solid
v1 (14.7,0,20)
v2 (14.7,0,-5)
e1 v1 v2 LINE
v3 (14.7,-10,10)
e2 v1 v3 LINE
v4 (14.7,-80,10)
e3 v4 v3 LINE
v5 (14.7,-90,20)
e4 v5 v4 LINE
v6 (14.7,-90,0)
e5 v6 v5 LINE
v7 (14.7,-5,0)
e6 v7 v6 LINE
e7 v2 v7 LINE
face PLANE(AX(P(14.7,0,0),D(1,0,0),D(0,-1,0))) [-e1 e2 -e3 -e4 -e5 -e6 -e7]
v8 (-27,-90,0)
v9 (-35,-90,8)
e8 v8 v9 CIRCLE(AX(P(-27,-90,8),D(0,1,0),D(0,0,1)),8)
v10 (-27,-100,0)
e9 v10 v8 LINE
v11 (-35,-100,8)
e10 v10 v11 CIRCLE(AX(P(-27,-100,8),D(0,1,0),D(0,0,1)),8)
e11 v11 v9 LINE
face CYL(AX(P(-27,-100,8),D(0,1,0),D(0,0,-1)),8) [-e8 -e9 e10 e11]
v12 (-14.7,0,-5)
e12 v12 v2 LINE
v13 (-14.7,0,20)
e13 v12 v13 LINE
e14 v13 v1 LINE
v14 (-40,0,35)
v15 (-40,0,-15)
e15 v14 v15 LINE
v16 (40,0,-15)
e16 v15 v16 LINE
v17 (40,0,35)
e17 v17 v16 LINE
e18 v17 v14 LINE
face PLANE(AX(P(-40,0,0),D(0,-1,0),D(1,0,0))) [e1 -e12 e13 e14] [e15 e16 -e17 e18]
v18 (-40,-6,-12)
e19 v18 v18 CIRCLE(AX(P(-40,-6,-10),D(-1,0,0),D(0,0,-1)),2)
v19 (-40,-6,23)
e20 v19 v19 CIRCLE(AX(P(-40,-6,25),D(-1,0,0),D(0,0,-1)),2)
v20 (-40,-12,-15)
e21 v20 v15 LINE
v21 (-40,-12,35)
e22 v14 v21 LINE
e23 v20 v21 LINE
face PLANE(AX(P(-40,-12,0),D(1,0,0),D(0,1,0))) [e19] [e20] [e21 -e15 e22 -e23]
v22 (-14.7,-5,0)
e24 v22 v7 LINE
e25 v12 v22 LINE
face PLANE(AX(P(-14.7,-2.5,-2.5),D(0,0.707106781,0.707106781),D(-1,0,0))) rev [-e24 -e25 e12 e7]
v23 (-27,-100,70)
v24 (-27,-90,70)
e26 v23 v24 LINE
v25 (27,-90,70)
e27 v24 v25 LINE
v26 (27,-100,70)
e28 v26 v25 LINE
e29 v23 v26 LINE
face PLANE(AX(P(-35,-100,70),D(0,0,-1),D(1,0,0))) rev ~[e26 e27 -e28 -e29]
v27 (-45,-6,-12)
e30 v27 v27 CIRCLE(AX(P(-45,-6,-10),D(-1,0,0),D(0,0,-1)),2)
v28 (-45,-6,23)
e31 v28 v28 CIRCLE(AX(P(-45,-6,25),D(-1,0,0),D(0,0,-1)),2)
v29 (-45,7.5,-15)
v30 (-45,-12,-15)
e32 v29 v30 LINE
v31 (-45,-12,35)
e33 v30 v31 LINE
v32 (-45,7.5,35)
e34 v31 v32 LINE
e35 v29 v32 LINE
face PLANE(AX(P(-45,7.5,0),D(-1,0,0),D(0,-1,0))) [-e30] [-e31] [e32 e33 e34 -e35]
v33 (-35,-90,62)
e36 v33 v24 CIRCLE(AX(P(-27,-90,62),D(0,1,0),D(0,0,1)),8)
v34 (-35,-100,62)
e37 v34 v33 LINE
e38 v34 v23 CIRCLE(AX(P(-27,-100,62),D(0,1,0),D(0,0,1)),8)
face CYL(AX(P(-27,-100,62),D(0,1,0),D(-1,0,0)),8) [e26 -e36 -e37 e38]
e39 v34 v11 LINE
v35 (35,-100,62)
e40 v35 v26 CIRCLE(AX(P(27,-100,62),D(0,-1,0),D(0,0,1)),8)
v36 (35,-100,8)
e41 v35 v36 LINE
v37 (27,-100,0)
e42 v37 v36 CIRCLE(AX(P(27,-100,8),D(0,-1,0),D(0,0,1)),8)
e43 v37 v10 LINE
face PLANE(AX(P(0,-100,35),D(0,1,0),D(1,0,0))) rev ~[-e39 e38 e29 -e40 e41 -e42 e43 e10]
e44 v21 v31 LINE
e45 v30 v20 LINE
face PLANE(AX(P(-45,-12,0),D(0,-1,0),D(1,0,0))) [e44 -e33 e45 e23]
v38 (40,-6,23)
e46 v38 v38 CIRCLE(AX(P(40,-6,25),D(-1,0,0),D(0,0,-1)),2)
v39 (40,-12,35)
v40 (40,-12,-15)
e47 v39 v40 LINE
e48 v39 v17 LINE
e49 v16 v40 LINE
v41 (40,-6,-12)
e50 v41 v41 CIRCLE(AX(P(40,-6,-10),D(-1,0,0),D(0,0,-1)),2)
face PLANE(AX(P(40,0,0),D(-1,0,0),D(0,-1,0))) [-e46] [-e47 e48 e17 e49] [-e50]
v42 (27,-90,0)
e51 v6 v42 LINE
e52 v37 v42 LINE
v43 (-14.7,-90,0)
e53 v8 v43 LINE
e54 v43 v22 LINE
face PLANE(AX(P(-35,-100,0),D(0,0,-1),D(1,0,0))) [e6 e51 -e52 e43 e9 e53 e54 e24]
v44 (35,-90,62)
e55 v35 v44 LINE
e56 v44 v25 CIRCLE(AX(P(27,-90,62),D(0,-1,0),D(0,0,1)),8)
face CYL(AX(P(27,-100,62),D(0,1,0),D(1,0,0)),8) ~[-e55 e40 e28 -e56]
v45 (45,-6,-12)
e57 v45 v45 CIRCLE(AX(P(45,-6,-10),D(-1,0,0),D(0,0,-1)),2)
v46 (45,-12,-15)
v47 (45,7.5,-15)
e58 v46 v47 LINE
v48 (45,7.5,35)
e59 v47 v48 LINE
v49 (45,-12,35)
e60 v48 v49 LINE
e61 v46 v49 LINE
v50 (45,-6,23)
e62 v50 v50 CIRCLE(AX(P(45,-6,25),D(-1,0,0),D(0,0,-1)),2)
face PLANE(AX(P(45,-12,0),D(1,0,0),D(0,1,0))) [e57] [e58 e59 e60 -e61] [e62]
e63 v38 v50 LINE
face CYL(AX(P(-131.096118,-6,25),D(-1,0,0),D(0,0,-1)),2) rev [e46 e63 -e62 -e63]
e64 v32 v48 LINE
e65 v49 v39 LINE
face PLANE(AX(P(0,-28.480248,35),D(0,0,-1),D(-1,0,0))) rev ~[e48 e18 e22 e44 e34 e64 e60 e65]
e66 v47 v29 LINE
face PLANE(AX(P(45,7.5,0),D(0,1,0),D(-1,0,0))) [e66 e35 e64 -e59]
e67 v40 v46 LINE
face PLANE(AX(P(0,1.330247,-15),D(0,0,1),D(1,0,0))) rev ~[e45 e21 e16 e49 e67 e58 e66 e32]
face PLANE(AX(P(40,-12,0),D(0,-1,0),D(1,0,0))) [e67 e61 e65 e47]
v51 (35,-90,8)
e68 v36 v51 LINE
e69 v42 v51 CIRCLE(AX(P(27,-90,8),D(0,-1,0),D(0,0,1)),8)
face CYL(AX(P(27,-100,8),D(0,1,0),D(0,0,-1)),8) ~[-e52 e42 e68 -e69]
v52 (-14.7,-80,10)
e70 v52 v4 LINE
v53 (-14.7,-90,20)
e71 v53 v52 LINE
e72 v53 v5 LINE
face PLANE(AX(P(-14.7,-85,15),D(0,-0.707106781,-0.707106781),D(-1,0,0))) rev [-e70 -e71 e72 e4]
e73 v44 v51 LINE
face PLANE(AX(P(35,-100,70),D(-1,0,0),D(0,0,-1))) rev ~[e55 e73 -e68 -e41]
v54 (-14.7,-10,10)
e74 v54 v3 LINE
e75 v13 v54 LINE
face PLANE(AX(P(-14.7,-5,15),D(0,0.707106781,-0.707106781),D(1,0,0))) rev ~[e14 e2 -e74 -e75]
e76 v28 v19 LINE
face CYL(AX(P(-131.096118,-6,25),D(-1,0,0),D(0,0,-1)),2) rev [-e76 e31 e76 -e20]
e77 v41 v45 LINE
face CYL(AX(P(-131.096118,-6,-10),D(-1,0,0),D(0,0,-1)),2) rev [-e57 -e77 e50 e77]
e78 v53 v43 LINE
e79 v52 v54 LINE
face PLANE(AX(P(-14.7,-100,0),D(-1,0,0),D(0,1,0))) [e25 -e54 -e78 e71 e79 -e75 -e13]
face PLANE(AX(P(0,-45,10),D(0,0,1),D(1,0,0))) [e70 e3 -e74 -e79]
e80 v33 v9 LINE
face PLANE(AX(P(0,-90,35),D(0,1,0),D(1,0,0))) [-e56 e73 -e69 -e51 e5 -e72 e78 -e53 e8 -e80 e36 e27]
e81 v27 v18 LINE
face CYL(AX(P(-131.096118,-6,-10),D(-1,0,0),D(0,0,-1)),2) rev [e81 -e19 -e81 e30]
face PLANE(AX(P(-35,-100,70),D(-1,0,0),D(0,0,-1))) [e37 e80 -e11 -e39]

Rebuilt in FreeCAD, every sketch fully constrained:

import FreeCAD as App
import Part
import Sketcher

V = App.Vector
Q = App.Units.Quantity


def edges_at(feature, points):
    """Names of the edges that pass closest to the given points."""
    edges = feature.Shape.Edges
    near = lambda p: min(range(len(edges)), key=lambda i: edges[i].distToShape(Part.Vertex(*p))[0])
    return sorted({f"Edge{near(p) + 1}" for p in points})

doc = App.newDocument("Part")
body = doc.addObject("PartDesign::Body", "Body")

sketch1 = body.newObject("Sketcher::SketchObject", "Sketch")
sketch1.AttachmentSupport = (doc.getObject("XY_Plane"), [""])
sketch1.MapMode = "FlatFace"
sketch1.addGeometry(Part.LineSegment(V(45, 8, 0), V(-45, 8, 0)), False)
sketch1.addGeometry(Part.LineSegment(V(-45, 8, 0), V(-45, -12, 0)), False)
sketch1.addGeometry(Part.LineSegment(V(-45, -12, 0), V(-40, -12, 0)), False)
sketch1.addGeometry(Part.LineSegment(V(-40, -12, 0), V(-40, 0, 0)), False)
sketch1.addGeometry(Part.LineSegment(V(-40, 0, 0), V(-15, 0, 0)), False)
sketch1.addGeometry(Part.LineSegment(V(-15, 0, 0), V(-15, -100, 0)), False)
sketch1.addGeometry(Part.LineSegment(V(-15, -100, 0), V(15, -100, 0)), False)
sketch1.addGeometry(Part.LineSegment(V(15, -100, 0), V(15, 0, 0)), False)
sketch1.addGeometry(Part.LineSegment(V(15, 0, 0), V(40, 0, 0)), False)
sketch1.addGeometry(Part.LineSegment(V(40, 0, 0), V(40, -12, 0)), False)
sketch1.addGeometry(Part.LineSegment(V(40, -12, 0), V(45, -12, 0)), False)
sketch1.addGeometry(Part.LineSegment(V(45, -12, 0), V(45, 8, 0)), False)
sketch1.addConstraint(Sketcher.Constraint("Coincident", 0, 2, 1, 1))
sketch1.addConstraint(Sketcher.Constraint("Coincident", 1, 2, 2, 1))
sketch1.addConstraint(Sketcher.Constraint("Coincident", 2, 2, 3, 1))
sketch1.addConstraint(Sketcher.Constraint("Coincident", 3, 2, 4, 1))
sketch1.addConstraint(Sketcher.Constraint("Coincident", 4, 2, 5, 1))
sketch1.addConstraint(Sketcher.Constraint("Coincident", 5, 2, 6, 1))
sketch1.addConstraint(Sketcher.Constraint("Coincident", 6, 2, 7, 1))
sketch1.addConstraint(Sketcher.Constraint("Coincident", 7, 2, 8, 1))
sketch1.addConstraint(Sketcher.Constraint("Coincident", 8, 2, 9, 1))
sketch1.addConstraint(Sketcher.Constraint("Coincident", 9, 2, 10, 1))
sketch1.addConstraint(Sketcher.Constraint("Coincident", 10, 2, 11, 1))
sketch1.addConstraint(Sketcher.Constraint("Coincident", 11, 2, 0, 1))
sketch1.addConstraint(Sketcher.Constraint("Horizontal", 0))
sketch1.addConstraint(Sketcher.Constraint("Vertical", 1))
sketch1.addConstraint(Sketcher.Constraint("Horizontal", 2))
sketch1.addConstraint(Sketcher.Constraint("Vertical", 3))
sketch1.addConstraint(Sketcher.Constraint("Horizontal", 4))
sketch1.addConstraint(Sketcher.Constraint("Vertical", 5))
sketch1.addConstraint(Sketcher.Constraint("Horizontal", 6))
sketch1.addConstraint(Sketcher.Constraint("Vertical", 7))
sketch1.addConstraint(Sketcher.Constraint("Horizontal", 8))
sketch1.addConstraint(Sketcher.Constraint("Vertical", 9))
sketch1.addConstraint(Sketcher.Constraint("Horizontal", 10))
sketch1.addConstraint(Sketcher.Constraint("Vertical", 11))
sketch1.addConstraint(Sketcher.Constraint("Symmetric", 4, 2, 7, 2, -1, 1))
sketch1.addConstraint(Sketcher.Constraint("Symmetric", 3, 2, 8, 2, -2))
sketch1.addConstraint(Sketcher.Constraint("Symmetric", 1, 2, 10, 2, -2))
sketch1.addConstraint(Sketcher.Constraint("DistanceX", 0, 2, 0, 1, Q("90 mm")))
sketch1.addConstraint(Sketcher.Constraint("DistanceX", 2, 1, 2, 2, Q("5 mm")))
sketch1.addConstraint(Sketcher.Constraint("DistanceY", 3, 1, 3, 2, Q("12 mm")))
sketch1.addConstraint(Sketcher.Constraint("DistanceY", 5, 2, 5, 1, Q("100 mm")))
sketch1.addConstraint(Sketcher.Constraint("DistanceX", 4, 1, 4, 2, Q("25.3 mm")))
sketch1.addConstraint(Sketcher.Constraint("DistanceY", 1, 2, 1, 1, Q("19.5 mm")))
pad1 = body.newObject("PartDesign::Pad", "Pad")
pad1.Profile = sketch1
pad1.Length = 35

sketch2 = body.newObject("Sketcher::SketchObject", "Sketch001")
sketch2.AttachmentSupport = (doc.getObject("XZ_Plane"), [""])
sketch2.MapMode = "FlatFace"
sketch2.AttachmentOffset = App.Placement(V(0, 0, 100), App.Rotation())
sketch2.addGeometry(Part.LineSegment(V(-35, 0, 0), V(-35, 70, 0)), False)
sketch2.addGeometry(Part.LineSegment(V(-35, 70, 0), V(35, 70, 0)), False)
sketch2.addGeometry(Part.LineSegment(V(35, 70, 0), V(35, 0, 0)), False)
sketch2.addGeometry(Part.LineSegment(V(35, 0, 0), V(-35, 0, 0)), False)
sketch2.addConstraint(Sketcher.Constraint("Coincident", 0, 2, 1, 1))
sketch2.addConstraint(Sketcher.Constraint("Coincident", 1, 2, 2, 1))
sketch2.addConstraint(Sketcher.Constraint("Coincident", 2, 2, 3, 1))
sketch2.addConstraint(Sketcher.Constraint("Coincident", 3, 2, 0, 1))
sketch2.addConstraint(Sketcher.Constraint("Vertical", 0))
sketch2.addConstraint(Sketcher.Constraint("Horizontal", 1))
sketch2.addConstraint(Sketcher.Constraint("Vertical", 2))
sketch2.addConstraint(Sketcher.Constraint("Horizontal", 3))
sketch2.addConstraint(Sketcher.Constraint("Symmetric", 2, 2, 3, 2, -1, 1))
sketch2.addConstraint(Sketcher.Constraint("Equal", 3, 0))
sketch2.addConstraint(Sketcher.Constraint("DistanceX", 1, 1, 1, 2, Q("70 mm")))
pad2 = body.newObject("PartDesign::Pad", "Pad001")
pad2.Profile = sketch2
pad2.Length = 10
pad2.Reversed = True

sketch3 = body.newObject("Sketcher::SketchObject", "Sketch002")
sketch3.AttachmentSupport = (doc.getObject("XY_Plane"), [""])
sketch3.MapMode = "FlatFace"
sketch3.AttachmentOffset = App.Placement(V(0, 0, 35), App.Rotation())
sketch3.addGeometry(Part.LineSegment(V(-15, 0, 0), V(-15, -90, 0)), False)
sketch3.addGeometry(Part.LineSegment(V(-15, -90, 0), V(15, -90, 0)), False)
sketch3.addGeometry(Part.LineSegment(V(15, -90, 0), V(15, 0, 0)), False)
sketch3.addGeometry(Part.LineSegment(V(15, 0, 0), V(-15, 0, 0)), False)
sketch3.addConstraint(Sketcher.Constraint("Coincident", 0, 2, 1, 1))
sketch3.addConstraint(Sketcher.Constraint("Coincident", 1, 2, 2, 1))
sketch3.addConstraint(Sketcher.Constraint("Coincident", 2, 2, 3, 1))
sketch3.addConstraint(Sketcher.Constraint("Coincident", 3, 2, 0, 1))
sketch3.addConstraint(Sketcher.Constraint("Vertical", 0))
sketch3.addConstraint(Sketcher.Constraint("Horizontal", 1))
sketch3.addConstraint(Sketcher.Constraint("Vertical", 2))
sketch3.addConstraint(Sketcher.Constraint("Horizontal", 3))
sketch3.addConstraint(Sketcher.Constraint("Symmetric", 2, 2, 3, 2, -1, 1))
sketch3.addConstraint(Sketcher.Constraint("DistanceY", 0, 2, 0, 1, Q("90 mm")))
sketch3.addConstraint(Sketcher.Constraint("DistanceX", 1, 1, 1, 2, Q("29.4 mm")))
pocket1 = body.newObject("PartDesign::Pocket", "Pocket")
pocket1.Profile = sketch3
pocket1.Length = 25
doc.recompute()

chamfer = body.newObject("PartDesign::Chamfer", "Chamfer")
chamfer.Base = (pocket1, edges_at(pocket1, [(0, 0, 10), (0, -90, 10)]))
chamfer.Size = 10

sketch4 = body.newObject("Sketcher::SketchObject", "Sketch003")
sketch4.AttachmentSupport = (doc.getObject("XY_Plane"), [""])
sketch4.MapMode = "FlatFace"
sketch4.addGeometry(Part.LineSegment(V(40, -12, 0), V(45, -12, 0)), False)
sketch4.addGeometry(Part.LineSegment(V(45, -12, 0), V(45, 8, 0)), False)
sketch4.addGeometry(Part.LineSegment(V(45, 8, 0), V(-45, 8, 0)), False)
sketch4.addGeometry(Part.LineSegment(V(-45, 8, 0), V(-45, -12, 0)), False)
sketch4.addGeometry(Part.LineSegment(V(-45, -12, 0), V(-40, -12, 0)), False)
sketch4.addGeometry(Part.LineSegment(V(-40, -12, 0), V(-40, 0, 0)), False)
sketch4.addGeometry(Part.LineSegment(V(-40, 0, 0), V(40, 0, 0)), False)
sketch4.addGeometry(Part.LineSegment(V(40, 0, 0), V(40, -12, 0)), False)
sketch4.addConstraint(Sketcher.Constraint("Coincident", 0, 2, 1, 1))
sketch4.addConstraint(Sketcher.Constraint("Coincident", 1, 2, 2, 1))
sketch4.addConstraint(Sketcher.Constraint("Coincident", 2, 2, 3, 1))
sketch4.addConstraint(Sketcher.Constraint("Coincident", 3, 2, 4, 1))
sketch4.addConstraint(Sketcher.Constraint("Coincident", 4, 2, 5, 1))
sketch4.addConstraint(Sketcher.Constraint("Coincident", 5, 2, 6, 1))
sketch4.addConstraint(Sketcher.Constraint("Coincident", 6, 2, 7, 1))
sketch4.addConstraint(Sketcher.Constraint("Coincident", 7, 2, 0, 1))
sketch4.addConstraint(Sketcher.Constraint("Horizontal", 0))
sketch4.addConstraint(Sketcher.Constraint("Vertical", 1))
sketch4.addConstraint(Sketcher.Constraint("Horizontal", 2))
sketch4.addConstraint(Sketcher.Constraint("Vertical", 3))
sketch4.addConstraint(Sketcher.Constraint("Horizontal", 4))
sketch4.addConstraint(Sketcher.Constraint("Vertical", 5))
sketch4.addConstraint(Sketcher.Constraint("Horizontal", 6))
sketch4.addConstraint(Sketcher.Constraint("Vertical", 7))
sketch4.addConstraint(Sketcher.Constraint("Symmetric", 5, 2, 6, 2, -1, 1))
sketch4.addConstraint(Sketcher.Constraint("Symmetric", 0, 2, 3, 2, -2))
sketch4.addConstraint(Sketcher.Constraint("DistanceX", 0, 1, 0, 2, Q("5 mm")))
sketch4.addConstraint(Sketcher.Constraint("DistanceX", 2, 2, 2, 1, Q("90 mm")))
sketch4.addConstraint(Sketcher.Constraint("DistanceY", 5, 1, 5, 2, Q("12 mm")))
sketch4.addConstraint(Sketcher.Constraint("DistanceY", 1, 1, 1, 2, Q("19.5 mm")))
pad3 = body.newObject("PartDesign::Pad", "Pad002")
pad3.Profile = sketch4
pad3.Length = 15
pad3.Reversed = True
doc.recompute()

chamfer2 = body.newObject("PartDesign::Chamfer", "Chamfer001")
chamfer2.Base = (pad3, edges_at(pad3, [(0, 0, 0)]))
chamfer2.Size = 5

sketch5 = body.newObject("Sketcher::SketchObject", "Sketch004")
sketch5.AttachmentSupport = (doc.getObject("YZ_Plane"), [""])
sketch5.MapMode = "FlatFace"
sketch5.addGeometry(Part.Circle(V(-6, -10, 0), V(0, 0, 1), 2), False)
sketch5.addGeometry(Part.Circle(V(-6, 25, 0), V(0, 0, 1), 2), False)
sketch5.addConstraint(Sketcher.Constraint("Equal", 0, 1))
sketch5.addConstraint(Sketcher.Constraint("Vertical", 0, 3, 1, 3))
sketch5.addConstraint(Sketcher.Constraint("Diameter", 0, Q("4 mm")))
sketch5.addConstraint(Sketcher.Constraint("DistanceX", 0, 3, -1, 1, Q("6 mm")))
sketch5.addConstraint(Sketcher.Constraint("DistanceY", 0, 3, -1, 1, Q("10 mm")))
sketch5.addConstraint(Sketcher.Constraint("DistanceY", -1, 1, 1, 3, Q("25 mm")))
pocket2 = body.newObject("PartDesign::Pocket", "Pocket001")
pocket2.Profile = sketch5
pocket2.Type = "ThroughAll"
pocket2.Midplane = True
doc.recompute()

fillet = body.newObject("PartDesign::Fillet", "Fillet")
fillet.Base = (pocket2, edges_at(pocket2, [
    (35, -95, 0),
    (-35, -95, 0),
    (-35, -95, 70),
    (35, -95, 70),
]))
fillet.Radius = 8

doc.recompute()
